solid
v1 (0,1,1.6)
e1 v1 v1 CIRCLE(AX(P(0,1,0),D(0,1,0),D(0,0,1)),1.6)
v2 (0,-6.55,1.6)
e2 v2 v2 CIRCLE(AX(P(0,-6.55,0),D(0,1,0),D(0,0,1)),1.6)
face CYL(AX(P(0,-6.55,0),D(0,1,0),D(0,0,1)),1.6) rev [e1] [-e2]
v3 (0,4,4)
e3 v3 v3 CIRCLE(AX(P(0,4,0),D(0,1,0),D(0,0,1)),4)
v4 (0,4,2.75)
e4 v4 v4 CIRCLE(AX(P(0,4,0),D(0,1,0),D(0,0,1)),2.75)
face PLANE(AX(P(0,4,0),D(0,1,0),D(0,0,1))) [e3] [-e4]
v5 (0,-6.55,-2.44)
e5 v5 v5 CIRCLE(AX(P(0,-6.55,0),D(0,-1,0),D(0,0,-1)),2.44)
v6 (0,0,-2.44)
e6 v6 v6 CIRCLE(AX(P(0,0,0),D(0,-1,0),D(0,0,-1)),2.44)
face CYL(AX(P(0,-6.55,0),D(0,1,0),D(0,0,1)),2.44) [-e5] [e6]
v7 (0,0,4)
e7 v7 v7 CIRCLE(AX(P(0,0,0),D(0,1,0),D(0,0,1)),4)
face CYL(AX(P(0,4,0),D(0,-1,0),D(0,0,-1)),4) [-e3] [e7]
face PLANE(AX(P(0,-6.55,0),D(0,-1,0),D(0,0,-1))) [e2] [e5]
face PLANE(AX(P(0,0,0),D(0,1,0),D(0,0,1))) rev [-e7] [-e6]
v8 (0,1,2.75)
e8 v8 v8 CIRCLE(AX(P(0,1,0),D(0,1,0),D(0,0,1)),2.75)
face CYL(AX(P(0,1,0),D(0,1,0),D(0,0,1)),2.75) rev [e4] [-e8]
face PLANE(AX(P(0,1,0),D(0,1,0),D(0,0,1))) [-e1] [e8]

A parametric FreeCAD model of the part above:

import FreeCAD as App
import Part
import Sketcher
from FreeCAD import Vector
Q = App.Units.Quantity

doc = App.newDocument("Part")
body = doc.addObject("PartDesign::Body", "Body")

sketch1 = doc.addObject("Sketcher::SketchObject", "Sketch")
body.addObject(sketch1)
sketch1.AttachmentSupport = (doc.XZ_Plane, [""])
sketch1.MapMode = "FlatFace"
sketch1.addGeometry(Part.Circle(Vector(0, 0, 0), Vector(0, 0, 1), 4), False)
sketch1.addConstraint([
    Sketcher.Constraint("Coincident", 0, 3, -1, 1),
    Sketcher.Constraint("Diameter", 0, Q("8 mm")),
])
pad1 = doc.addObject("PartDesign::Pad", "Pad")
body.addObject(pad1)
pad1.Profile = sketch1
pad1.Length = 4
pad1.Reversed = True

sketch2 = doc.addObject("Sketcher::SketchObject", "Sketch001")
body.addObject(sketch2)
sketch2.AttachmentSupport = (doc.XZ_Plane, [""])
sketch2.MapMode = "FlatFace"
sketch2.addGeometry(Part.Circle(Vector(0, 0, 0), Vector(0, 0, 1), 2.44), False)
sketch2.addConstraint([
    Sketcher.Constraint("Coincident", 0, 3, -1, 1),
    Sketcher.Constraint("Diameter", 0, Q("4.88 mm")),
])
pad2 = doc.addObject("PartDesign::Pad", "Pad001")
body.addObject(pad2)
pad2.Profile = sketch2
pad2.Length = 6.55

sketch3 = doc.addObject("Sketcher::SketchObject", "Sketch002")
body.addObject(sketch3)
sketch3.AttachmentSupport = (doc.XZ_Plane, [""])
sketch3.MapMode = "FlatFace"
sketch3.AttachmentOffset = App.Placement(Vector(0, 0, -4), App.Rotation())
sketch3.addGeometry(Part.Circle(Vector(0, 0, 0), Vector(0, 0, 1), 2.75), False)
sketch3.addConstraint([
    Sketcher.Constraint("Coincident", 0, 3, -1, 1),
    Sketcher.Constraint("Diameter", 0, Q("5.5 mm")),
])
pocket1 = doc.addObject("PartDesign::Pocket", "Pocket")
body.addObject(pocket1)
pocket1.Profile = sketch3
pocket1.Length = 3
pocket1.Reversed = True

sketch4 = doc.addObject("Sketcher::SketchObject", "Sketch003")
body.addObject(sketch4)
sketch4.AttachmentSupport = (doc.XZ_Plane, [""])
sketch4.MapMode = "FlatFace"
sketch4.AttachmentOffset = App.Placement(Vector(0, 0, -1), App.Rotation())
sketch4.addGeometry(Part.Circle(Vector(0, 0, 0), Vector(0, 0, 1), 1.6), False)
sketch4.addConstraint([
    Sketcher.Constraint("Coincident", 0, 3, -1, 1),
    Sketcher.Constraint("Diameter", 0, Q("3.2 mm")),
])
pocket2 = doc.addObject("PartDesign::Pocket", "Pocket001")
body.addObject(pocket2)
pocket2.Profile = sketch4
pocket2.Type = "ThroughAll"
pocket2.Reversed = True

doc.recompute()
